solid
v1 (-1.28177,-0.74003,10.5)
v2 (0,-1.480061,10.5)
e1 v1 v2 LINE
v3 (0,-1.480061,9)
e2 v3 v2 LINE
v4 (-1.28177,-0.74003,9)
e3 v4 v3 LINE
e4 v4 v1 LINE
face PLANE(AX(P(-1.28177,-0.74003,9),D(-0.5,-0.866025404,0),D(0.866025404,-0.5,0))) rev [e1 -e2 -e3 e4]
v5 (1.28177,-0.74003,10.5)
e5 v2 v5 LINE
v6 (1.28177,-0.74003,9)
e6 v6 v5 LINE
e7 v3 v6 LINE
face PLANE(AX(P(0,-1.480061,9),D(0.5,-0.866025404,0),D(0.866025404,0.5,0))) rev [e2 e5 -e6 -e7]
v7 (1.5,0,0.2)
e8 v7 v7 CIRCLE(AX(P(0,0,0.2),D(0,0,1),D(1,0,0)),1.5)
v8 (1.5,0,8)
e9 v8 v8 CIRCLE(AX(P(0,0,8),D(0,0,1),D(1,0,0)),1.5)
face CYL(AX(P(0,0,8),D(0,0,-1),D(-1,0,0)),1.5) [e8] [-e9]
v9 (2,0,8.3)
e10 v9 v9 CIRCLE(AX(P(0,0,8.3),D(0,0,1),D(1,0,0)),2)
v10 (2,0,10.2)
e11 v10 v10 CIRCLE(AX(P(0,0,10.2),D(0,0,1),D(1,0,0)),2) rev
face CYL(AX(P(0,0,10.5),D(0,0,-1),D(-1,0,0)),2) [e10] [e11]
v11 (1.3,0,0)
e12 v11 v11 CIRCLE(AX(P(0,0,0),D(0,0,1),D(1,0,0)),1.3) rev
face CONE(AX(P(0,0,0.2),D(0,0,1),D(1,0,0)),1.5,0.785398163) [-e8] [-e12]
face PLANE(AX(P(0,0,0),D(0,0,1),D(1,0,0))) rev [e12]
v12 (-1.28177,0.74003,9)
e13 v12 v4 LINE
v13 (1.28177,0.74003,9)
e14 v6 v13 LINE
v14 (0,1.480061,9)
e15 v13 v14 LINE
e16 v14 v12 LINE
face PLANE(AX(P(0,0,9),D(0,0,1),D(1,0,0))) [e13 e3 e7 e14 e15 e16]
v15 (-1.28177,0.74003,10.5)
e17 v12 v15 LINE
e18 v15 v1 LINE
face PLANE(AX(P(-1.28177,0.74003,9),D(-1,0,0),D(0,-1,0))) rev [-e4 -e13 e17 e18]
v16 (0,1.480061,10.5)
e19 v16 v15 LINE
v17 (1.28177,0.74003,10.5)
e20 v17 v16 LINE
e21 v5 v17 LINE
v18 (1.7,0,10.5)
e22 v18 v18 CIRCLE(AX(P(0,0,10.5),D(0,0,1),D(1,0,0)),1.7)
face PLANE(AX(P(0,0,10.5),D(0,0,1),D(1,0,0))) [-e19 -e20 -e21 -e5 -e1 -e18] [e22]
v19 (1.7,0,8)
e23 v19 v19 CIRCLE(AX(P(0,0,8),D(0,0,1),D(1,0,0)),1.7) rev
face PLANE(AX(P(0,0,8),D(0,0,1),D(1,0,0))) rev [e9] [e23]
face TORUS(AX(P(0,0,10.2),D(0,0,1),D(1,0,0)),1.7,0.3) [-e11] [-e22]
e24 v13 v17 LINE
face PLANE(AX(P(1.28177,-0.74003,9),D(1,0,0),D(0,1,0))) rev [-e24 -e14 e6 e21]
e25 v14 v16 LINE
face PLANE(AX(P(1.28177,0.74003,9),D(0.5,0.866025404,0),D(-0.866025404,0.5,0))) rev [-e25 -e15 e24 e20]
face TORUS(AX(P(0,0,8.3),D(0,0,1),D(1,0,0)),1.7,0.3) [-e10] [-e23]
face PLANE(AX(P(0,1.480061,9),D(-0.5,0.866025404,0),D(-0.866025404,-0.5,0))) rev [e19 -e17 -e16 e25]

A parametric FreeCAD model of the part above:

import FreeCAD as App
import Part
import Sketcher

V = App.Vector
Q = App.Units.Quantity


def edges_at(feature, points):
    """Names of the edges that pass closest to the given points."""
    edges = feature.Shape.Edges
    near = lambda p: min(range(len(edges)), key=lambda i: edges[i].distToShape(Part.Vertex(*p))[0])
    return sorted({f"Edge{near(p) + 1}" for p in points})


def add_polygon(sketch, points):
    """Adds a closed chain of lines whose ends are joined by coincident constraints."""
    first, n = sketch.GeometryCount, len(points)
    for a, b in zip(points, points[1:] + points[:1]):
        sketch.addGeometry(Part.LineSegment(App.Vector(*a, 0), App.Vector(*b, 0)), False)
    for i in range(n):
        sketch.addConstraint(Sketcher.Constraint("Coincident", first + i, 2, first + (i + 1) % n, 1))

doc = App.newDocument("Part")
body = doc.addObject("PartDesign::Body", "Body")

sketch1 = doc.addObject("Sketcher::SketchObject", "Sketch")
body.addObject(sketch1)
sketch1.AttachmentSupport = (doc.XY_Plane, [""])
sketch1.MapMode = "FlatFace"
sketch1.addGeometry(Part.Circle(V(0, 0, 0), V(0, 0, 1), 1.5), False)
sketch1.addConstraint(Sketcher.Constraint("Coincident", 0, 3, -1, 1))
sketch1.addConstraint(Sketcher.Constraint("Diameter", 0, Q("3 mm")))
pad1 = doc.addObject("PartDesign::Pad", "Pad")
body.addObject(pad1)
pad1.Profile = sketch1
pad1.Length = 8

sketch2 = doc.addObject("Sketcher::SketchObject", "Sketch001")
body.addObject(sketch2)
sketch2.AttachmentSupport = (doc.XY_Plane, [""])
sketch2.MapMode = "FlatFace"
sketch2.AttachmentOffset = App.Placement(V(0, 0, 8), App.Rotation())
sketch2.addGeometry(Part.Circle(V(0, 0, 0), V(0, 0, 1), 2), False)
sketch2.addConstraint(Sketcher.Constraint("Coincident", 0, 3, -1, 1))
sketch2.addConstraint(Sketcher.Constraint("Diameter", 0, Q("4 mm")))
pad2 = doc.addObject("PartDesign::Pad", "Pad001")
body.addObject(pad2)
pad2.Profile = sketch2
pad2.Length = 2.5

sketch3 = doc.addObject("Sketcher::SketchObject", "Sketch002")
body.addObject(sketch3)
sketch3.AttachmentSupport = (doc.XY_Plane, [""])
sketch3.MapMode = "FlatFace"
sketch3.AttachmentOffset = App.Placement(V(0, 0, 10.5), App.Rotation())
add_polygon(sketch3, [(0, 1.480061), (-1.28177, 0.74003), (-1.28177, -0.74003), (0, -1.480061), (1.28177, -0.74003), (1.28177, 0.74003)])
sketch3.addConstraint(Sketcher.Constraint("Vertical", 1))
sketch3.addConstraint(Sketcher.Constraint("Vertical", 4))
sketch3.addConstraint(Sketcher.Constraint("Symmetric", 0, 2, 3, 2, -1, 1))
sketch3.addConstraint(Sketcher.Constraint("Symmetric", 2, 2, 5, 2, -1, 1))
sketch3.addConstraint(Sketcher.Constraint("PointOnObject", 2, 2, -2))
sketch3.addConstraint(Sketcher.Constraint("Parallel", 2, 5))
sketch3.addConstraint(Sketcher.Constraint("Horizontal", 1, 2, 3, 2))
sketch3.addConstraint(Sketcher.Constraint("Angle", 0, Q("-150 deg")))
sketch3.addConstraint(Sketcher.Constraint("DistanceY", 1, 2, 1, 1, Q("1.480061 mm")))
sketch3.addConstraint(Sketcher.Constraint("Distance", 0, Q("1.480061 mm")))
pocket1 = doc.addObject("PartDesign::Pocket", "Pocket")
body.addObject(pocket1)
pocket1.Profile = sketch3
pocket1.Length = 1.5
doc.recompute()

fillet = doc.addObject("PartDesign::Fillet", "Fillet")
body.addObject(fillet)
fillet.Base = (pocket1, edges_at(pocket1, [(-2, 0, 8), (-2, 0, 10.5)]))
fillet.Radius = 0.3
doc.recompute()

chamfer = doc.addObject("PartDesign::Chamfer", "Chamfer")
body.addObject(chamfer)
chamfer.Base = (fillet, edges_at(fillet, [(-1.5, 0, 0)]))
chamfer.Size = 0.2

doc.recompute()
